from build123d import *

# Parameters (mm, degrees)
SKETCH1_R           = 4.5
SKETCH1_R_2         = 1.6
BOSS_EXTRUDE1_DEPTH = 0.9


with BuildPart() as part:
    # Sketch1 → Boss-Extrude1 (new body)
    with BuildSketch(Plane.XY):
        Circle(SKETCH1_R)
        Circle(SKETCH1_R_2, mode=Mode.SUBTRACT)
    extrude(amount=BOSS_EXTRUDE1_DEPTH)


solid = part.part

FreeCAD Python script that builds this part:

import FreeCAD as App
import Part
import Sketcher

doc = App.newDocument("Part")
body = doc.addObject("PartDesign::Body", "Body")

# Sketch on XY plane
sketch1 = body.newObject("Sketcher::SketchObject", "Sketch")
sketch1.AttachmentSupport = (doc.getObject("XY_Plane"), [""])
sketch1.MapMode = "FlatFace"
sketch1.addGeometry(Part.Circle(App.Vector(0, 0, 0), App.Vector(0, 0, 1), 4.5), False)
sketch1.addGeometry(Part.Circle(App.Vector(0, 0, 0), App.Vector(0, 0, 1), 1.6), False)
sketch1.addConstraint(Sketcher.Constraint("Coincident", 0, 3, -1, 1))
sketch1.addConstraint(Sketcher.Constraint("Coincident", 1, 3, -1, 1))
sketch1.addConstraint(Sketcher.Constraint("Diameter", 0, 9.0))
sketch1.addConstraint(Sketcher.Constraint("Diameter", 1, 3.2))
pad1 = body.newObject("PartDesign::Pad", "Pad")
pad1.Profile = sketch1
pad1.Length = 0.9

doc.recompute()
